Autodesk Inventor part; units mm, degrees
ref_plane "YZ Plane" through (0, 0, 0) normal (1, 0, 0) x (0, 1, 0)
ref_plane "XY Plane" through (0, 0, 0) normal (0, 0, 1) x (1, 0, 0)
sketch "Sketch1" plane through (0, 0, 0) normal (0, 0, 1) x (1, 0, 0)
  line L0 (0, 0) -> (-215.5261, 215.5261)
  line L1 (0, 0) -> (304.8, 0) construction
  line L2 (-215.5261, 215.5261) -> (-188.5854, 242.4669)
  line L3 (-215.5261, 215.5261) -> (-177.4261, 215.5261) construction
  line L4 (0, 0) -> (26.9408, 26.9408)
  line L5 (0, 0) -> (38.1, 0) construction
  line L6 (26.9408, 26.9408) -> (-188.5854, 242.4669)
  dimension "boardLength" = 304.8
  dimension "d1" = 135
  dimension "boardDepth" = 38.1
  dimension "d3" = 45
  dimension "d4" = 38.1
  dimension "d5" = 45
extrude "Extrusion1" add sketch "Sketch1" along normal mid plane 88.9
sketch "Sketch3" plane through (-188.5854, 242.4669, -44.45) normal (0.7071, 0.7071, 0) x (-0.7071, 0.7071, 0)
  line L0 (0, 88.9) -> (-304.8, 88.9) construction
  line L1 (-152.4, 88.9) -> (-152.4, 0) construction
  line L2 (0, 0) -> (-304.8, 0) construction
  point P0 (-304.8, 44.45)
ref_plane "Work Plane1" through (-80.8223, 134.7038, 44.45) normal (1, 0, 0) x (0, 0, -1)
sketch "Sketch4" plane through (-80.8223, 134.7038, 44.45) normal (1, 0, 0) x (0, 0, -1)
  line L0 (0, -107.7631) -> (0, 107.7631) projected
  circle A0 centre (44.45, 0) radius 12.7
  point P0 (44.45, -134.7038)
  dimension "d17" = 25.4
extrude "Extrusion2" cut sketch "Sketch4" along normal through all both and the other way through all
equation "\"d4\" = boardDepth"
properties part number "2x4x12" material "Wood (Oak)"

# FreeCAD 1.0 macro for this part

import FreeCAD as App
import Part
import Sketcher
Q = App.Units.Quantity


def add_polygon(sketch, points):
    """Adds a closed chain of lines whose ends are joined by coincident constraints."""
    first, n = sketch.GeometryCount, len(points)
    for a, b in zip(points, points[1:] + points[:1]):
        sketch.addGeometry(Part.LineSegment(App.Vector(*a, 0), App.Vector(*b, 0)), False)
    for i in range(n):
        sketch.addConstraint(Sketcher.Constraint("Coincident", first + i, 2, first + (i + 1) % n, 1))

doc = App.newDocument("Part")
body = doc.addObject("PartDesign::Body", "Body")

# Sketch on XY plane
sketch1 = body.newObject("Sketcher::SketchObject", "Sketch")
sketch1.AttachmentSupport = (doc.getObject("XY_Plane"), [""])
sketch1.MapMode = "FlatFace"
add_polygon(sketch1, [(-215.5261, 215.5261), (0, 0), (26.9408, 26.9408), (-188.5854, 242.4669)])  # lines 0-3
sketch1.addConstraint([
    Sketcher.Constraint("Coincident", 0, 2, -1, 1),
    Sketcher.Constraint("Perpendicular", 0, 1),
    Sketcher.Constraint("Perpendicular", 1, 2),
    Sketcher.Constraint("Perpendicular", 2, 3),
    Sketcher.Constraint("Distance", 0, Q("12 in")),
    Sketcher.Constraint("Angle", 0, Q("-45 deg")),
    Sketcher.Constraint("Distance", 1, Q("1.5 in")),
])
pad1 = body.newObject("PartDesign::Pad", "Pad")
pad1.Profile = sketch1
pad1.Length = Q("3.5 in")
pad1.Midplane = True

# Sketch on YZ plane
sketch2 = body.newObject("Sketcher::SketchObject", "Sketch001")
sketch2.AttachmentSupport = (doc.getObject("YZ_Plane"), [""])
sketch2.MapMode = "FlatFace"
sketch2.AttachmentOffset = App.Placement(App.Vector(0, 0, -80.8223), App.Rotation())
sketch2.addGeometry(Part.Circle(App.Vector(134.7038, 0, 0), App.Vector(0, 0, 1), 12.7), False)
sketch2.addConstraint([
    Sketcher.Constraint("PointOnObject", 0, 3, -1),
    Sketcher.Constraint("Diameter", 0, Q("1 in")),
    Sketcher.Constraint("DistanceX", -1, 1, 0, 3, Q("5.3033 in")),
])
pocket1 = body.newObject("PartDesign::Pocket", "Pocket")
pocket1.Profile = sketch2
pocket1.Type = "ThroughAll"
pocket1.Midplane = True

doc.recompute()
